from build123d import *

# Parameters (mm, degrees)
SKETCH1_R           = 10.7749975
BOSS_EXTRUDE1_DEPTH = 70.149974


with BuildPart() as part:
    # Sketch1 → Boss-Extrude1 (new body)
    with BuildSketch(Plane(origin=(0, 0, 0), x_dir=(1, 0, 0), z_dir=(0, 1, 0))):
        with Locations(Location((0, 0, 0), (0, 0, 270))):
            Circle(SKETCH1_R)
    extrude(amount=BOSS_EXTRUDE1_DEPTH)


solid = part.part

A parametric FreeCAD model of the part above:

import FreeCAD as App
import Part
import Sketcher
Q = App.Units.Quantity

doc = App.newDocument("Part")
params = doc.addObject("Spreadsheet::Sheet", "Params")
for row, (alias, value) in enumerate([
    ("pad1_length", "70.149974 mm"),
], start=1):
    params.set(f"A{row}", alias)
    params.set(f"B{row}", "=" + value)
    params.setAlias(f"B{row}", alias)

body = doc.addObject("PartDesign::Body", "Body")

# Sketch on XZ plane
sketch1 = body.newObject("Sketcher::SketchObject", "Sketch")
sketch1.AttachmentSupport = (doc.getObject("XZ_Plane"), [""])
sketch1.MapMode = "FlatFace"
sketch1.addGeometry(Part.Circle(App.Vector(0, 0, 0), App.Vector(0, 0, 1), 11), False)
sketch1.addConstraint([
    Sketcher.Constraint("Coincident", 0, 3, -1, 1),
    Sketcher.Constraint("Diameter", 0, Q("21.549995 mm")),
])
pad1 = body.newObject("PartDesign::Pad", "Pad")
pad1.Profile = sketch1
pad1.setExpression("Length", "Params.pad1_length")
pad1.Reversed = True

doc.recompute()
